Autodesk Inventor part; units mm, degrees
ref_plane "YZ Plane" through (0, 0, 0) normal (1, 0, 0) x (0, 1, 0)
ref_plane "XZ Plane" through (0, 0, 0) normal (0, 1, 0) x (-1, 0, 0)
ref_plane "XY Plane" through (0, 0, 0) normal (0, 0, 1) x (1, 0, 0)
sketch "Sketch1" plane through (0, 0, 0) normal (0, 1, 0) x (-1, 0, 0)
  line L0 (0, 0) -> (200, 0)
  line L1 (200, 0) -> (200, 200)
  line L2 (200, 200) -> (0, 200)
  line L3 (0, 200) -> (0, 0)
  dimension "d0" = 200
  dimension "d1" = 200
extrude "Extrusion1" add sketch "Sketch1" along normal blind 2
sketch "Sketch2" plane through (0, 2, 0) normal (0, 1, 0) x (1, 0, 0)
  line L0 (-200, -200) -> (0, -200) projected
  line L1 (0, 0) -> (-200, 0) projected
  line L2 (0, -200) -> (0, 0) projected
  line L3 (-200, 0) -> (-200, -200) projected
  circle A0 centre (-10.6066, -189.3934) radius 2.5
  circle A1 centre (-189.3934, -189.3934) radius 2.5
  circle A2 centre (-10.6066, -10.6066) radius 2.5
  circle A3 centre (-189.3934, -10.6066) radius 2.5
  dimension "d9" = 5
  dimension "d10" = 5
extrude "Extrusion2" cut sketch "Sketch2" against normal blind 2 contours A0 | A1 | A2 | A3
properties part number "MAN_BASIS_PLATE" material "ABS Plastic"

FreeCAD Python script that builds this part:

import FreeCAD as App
import Part
import Sketcher
from FreeCAD import Vector
Q = App.Units.Quantity

doc = App.newDocument("Part")
body = doc.addObject("PartDesign::Body", "Body")

sketch1 = doc.addObject("Sketcher::SketchObject", "Sketch")
body.addObject(sketch1)
sketch1.AttachmentSupport = (doc.XZ_Plane, [""])
sketch1.MapMode = "FlatFace"
sketch1.addGeometry(Part.LineSegment(Vector(0, 200, 0), Vector(0, 0, 0)), False)
sketch1.addGeometry(Part.LineSegment(Vector(0, 0, 0), Vector(-200, 0, 0)), False)
sketch1.addGeometry(Part.LineSegment(Vector(-200, 0, 0), Vector(-200, 200, 0)), False)
sketch1.addGeometry(Part.LineSegment(Vector(-200, 200, 0), Vector(0, 200, 0)), False)
sketch1.addConstraint(Sketcher.Constraint("Coincident", 0, 2, 1, 1))
sketch1.addConstraint(Sketcher.Constraint("Coincident", 1, 2, 2, 1))
sketch1.addConstraint(Sketcher.Constraint("Coincident", 2, 2, 3, 1))
sketch1.addConstraint(Sketcher.Constraint("Coincident", 3, 2, 0, 1))
sketch1.addConstraint(Sketcher.Constraint("Vertical", 0))
sketch1.addConstraint(Sketcher.Constraint("Horizontal", 1))
sketch1.addConstraint(Sketcher.Constraint("Vertical", 2))
sketch1.addConstraint(Sketcher.Constraint("Horizontal", 3))
sketch1.addConstraint(Sketcher.Constraint("Coincident", 0, 2, -1, 1))
sketch1.addConstraint(Sketcher.Constraint("Equal", 3, 0))
sketch1.addConstraint(Sketcher.Constraint("DistanceX", 1, 2, 1, 1, Q("200 mm")))
pad1 = doc.addObject("PartDesign::Pad", "Pad")
body.addObject(pad1)
pad1.Profile = sketch1
pad1.Length = 2
pad1.Reversed = True

sketch2 = doc.addObject("Sketcher::SketchObject", "Sketch001")
body.addObject(sketch2)
sketch2.AttachmentSupport = (doc.XZ_Plane, [""])
sketch2.MapMode = "FlatFace"
sketch2.AttachmentOffset = App.Placement(Vector(0, 0, -2), App.Rotation())
sketch2.addGeometry(Part.Circle(Vector(-10.6066, 189.3934, 0), Vector(0, 0, 1), 2.5), False)
sketch2.addGeometry(Part.Circle(Vector(-189.3934, 189.3934, 0), Vector(0, 0, 1), 2.5), False)
sketch2.addGeometry(Part.Circle(Vector(-10.6066, 10.6066, 0), Vector(0, 0, 1), 2.5), False)
sketch2.addGeometry(Part.Circle(Vector(-189.3934, 10.6066, 0), Vector(0, 0, 1), 2.5), False)
sketch2.addConstraint(Sketcher.Constraint("Equal", 0, 1))
sketch2.addConstraint(Sketcher.Constraint("Equal", 1, 2))
sketch2.addConstraint(Sketcher.Constraint("Equal", 2, 3))
sketch2.addConstraint(Sketcher.Constraint("Horizontal", 0, 3, 1, 3))
sketch2.addConstraint(Sketcher.Constraint("Horizontal", 2, 3, 3, 3))
sketch2.addConstraint(Sketcher.Constraint("Vertical", 0, 3, 2, 3))
sketch2.addConstraint(Sketcher.Constraint("Vertical", 1, 3, 3, 3))
sketch2.addConstraint(Sketcher.Constraint("Diameter", 0, Q("5 mm")))
sketch2.addConstraint(Sketcher.Constraint("DistanceX", 0, 3, -1, 1, Q("10.6066 mm")))
sketch2.addConstraint(Sketcher.Constraint("DistanceY", -1, 1, 0, 3, Q("189.3934 mm")))
sketch2.addConstraint(Sketcher.Constraint("DistanceX", 1, 3, -1, 1, Q("189.3934 mm")))
sketch2.addConstraint(Sketcher.Constraint("DistanceY", -1, 1, 2, 3, Q("10.6066 mm")))
pocket1 = doc.addObject("PartDesign::Pocket", "Pocket")
body.addObject(pocket1)
pocket1.Profile = sketch2
pocket1.Length = 2
pocket1.Reversed = True

doc.recompute()
